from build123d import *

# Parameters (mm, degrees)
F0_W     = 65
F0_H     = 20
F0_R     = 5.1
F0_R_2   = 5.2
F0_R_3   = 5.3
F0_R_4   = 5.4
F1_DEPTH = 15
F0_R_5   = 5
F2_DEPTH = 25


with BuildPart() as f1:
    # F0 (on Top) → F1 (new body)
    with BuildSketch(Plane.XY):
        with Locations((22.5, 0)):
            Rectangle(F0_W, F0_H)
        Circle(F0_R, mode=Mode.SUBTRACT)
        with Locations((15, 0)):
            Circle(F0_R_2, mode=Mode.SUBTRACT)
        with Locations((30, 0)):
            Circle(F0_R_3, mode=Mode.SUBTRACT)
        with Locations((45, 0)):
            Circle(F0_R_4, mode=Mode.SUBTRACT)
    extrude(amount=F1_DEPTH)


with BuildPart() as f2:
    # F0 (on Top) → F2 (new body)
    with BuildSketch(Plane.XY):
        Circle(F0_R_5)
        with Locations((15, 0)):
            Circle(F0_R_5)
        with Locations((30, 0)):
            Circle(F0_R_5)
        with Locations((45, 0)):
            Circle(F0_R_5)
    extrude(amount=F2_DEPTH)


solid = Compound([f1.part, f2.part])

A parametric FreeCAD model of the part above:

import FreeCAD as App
import Part
import Sketcher

V = App.Vector
Q = App.Units.Quantity


def add_polygon(sketch, points):
    """Adds a closed chain of lines whose ends are joined by coincident constraints."""
    first, n = sketch.GeometryCount, len(points)
    for a, b in zip(points, points[1:] + points[:1]):
        sketch.addGeometry(Part.LineSegment(App.Vector(*a, 0), App.Vector(*b, 0)), False)
    for i in range(n):
        sketch.addConstraint(Sketcher.Constraint("Coincident", first + i, 2, first + (i + 1) % n, 1))

doc = App.newDocument("Part")
body = doc.addObject("PartDesign::Body", "Body")

# Sketch on XY plane
sketch1 = body.newObject("Sketcher::SketchObject", "Sketch")
sketch1.AttachmentSupport = (doc.getObject("XY_Plane"), [""])
sketch1.MapMode = "FlatFace"
add_polygon(sketch1, [(-10, 10), (-10, -10), (55, -10), (55, 10)])  # lines 0-3
sketch1.addGeometry(Part.Circle(V(0, 0, 0), V(0, 0, 1), 5), False)  # 4
sketch1.addGeometry(Part.Circle(V(15, 0, 0), V(0, 0, 1), 5), False)  # 5
sketch1.addGeometry(Part.Circle(V(30, 0, 0), V(0, 0, 1), 5), False)  # 6
sketch1.addGeometry(Part.Circle(V(45, 0, 0), V(0, 0, 1), 5), False)  # 7
sketch1.addConstraint(Sketcher.Constraint("Vertical", 0))
sketch1.addConstraint(Sketcher.Constraint("Horizontal", 1))
sketch1.addConstraint(Sketcher.Constraint("Vertical", 2))
sketch1.addConstraint(Sketcher.Constraint("Horizontal", 3))
sketch1.addConstraint(Sketcher.Constraint("Coincident", 4, 3, -1, 1))
sketch1.addConstraint(Sketcher.Constraint("PointOnObject", 5, 3, -1))
sketch1.addConstraint(Sketcher.Constraint("PointOnObject", 6, 3, -1))
sketch1.addConstraint(Sketcher.Constraint("PointOnObject", 7, 3, -1))
sketch1.addConstraint(Sketcher.Constraint("Diameter", 4, Q("10.2 mm")))
sketch1.addConstraint(Sketcher.Constraint("Diameter", 5, Q("10.4 mm")))
sketch1.addConstraint(Sketcher.Constraint("Diameter", 6, Q("10.6 mm")))
sketch1.addConstraint(Sketcher.Constraint("Diameter", 7, Q("10.8 mm")))
sketch1.addConstraint(Sketcher.Constraint("DistanceX", 1, 1, 1, 2, Q("65 mm")))
sketch1.addConstraint(Sketcher.Constraint("DistanceY", 0, 2, 0, 1, Q("20 mm")))
sketch1.addConstraint(Sketcher.Constraint("DistanceX", -1, 1, 5, 3, Q("15 mm")))
sketch1.addConstraint(Sketcher.Constraint("DistanceX", -1, 1, 6, 3, Q("30 mm")))
sketch1.addConstraint(Sketcher.Constraint("DistanceX", -1, 1, 7, 3, Q("45 mm")))
sketch1.addConstraint(Sketcher.Constraint("DistanceX", 0, 2, -1, 1, Q("10 mm")))
sketch1.addConstraint(Sketcher.Constraint("DistanceY", 0, 2, -1, 1, Q("10 mm")))
pad1 = body.newObject("PartDesign::Pad", "Pad")
pad1.Profile = sketch1
pad1.Length = 15
body2 = doc.addObject("PartDesign::Body", "Body001")
body2.AllowCompound = True

# Sketch on XY plane
sketch2 = body2.newObject("Sketcher::SketchObject", "Sketch001")
sketch2.AttachmentSupport = (doc.getObject("XY_Plane001"), [""])
sketch2.MapMode = "FlatFace"
sketch2.addGeometry(Part.Circle(V(0, 0, 0), V(0, 0, 1), 5), False)
sketch2.addGeometry(Part.Circle(V(15, 0, 0), V(0, 0, 1), 5), False)
sketch2.addGeometry(Part.Circle(V(30, 0, 0), V(0, 0, 1), 5), False)
sketch2.addGeometry(Part.Circle(V(45, 0, 0), V(0, 0, 1), 5), False)
sketch2.addConstraint(Sketcher.Constraint("Coincident", 0, 3, -1, 1))
sketch2.addConstraint(Sketcher.Constraint("Equal", 0, 1))
sketch2.addConstraint(Sketcher.Constraint("Equal", 1, 2))
sketch2.addConstraint(Sketcher.Constraint("Equal", 2, 3))
sketch2.addConstraint(Sketcher.Constraint("PointOnObject", 1, 3, -1))
sketch2.addConstraint(Sketcher.Constraint("PointOnObject", 2, 3, -1))
sketch2.addConstraint(Sketcher.Constraint("PointOnObject", 3, 3, -1))
sketch2.addConstraint(Sketcher.Constraint("Diameter", 0, Q("10 mm")))
sketch2.addConstraint(Sketcher.Constraint("DistanceX", -1, 1, 1, 3, Q("15 mm")))
sketch2.addConstraint(Sketcher.Constraint("DistanceX", -1, 1, 2, 3, Q("30 mm")))
sketch2.addConstraint(Sketcher.Constraint("DistanceX", -1, 1, 3, 3, Q("45 mm")))
pad2 = body2.newObject("PartDesign::Pad", "Pad001")
pad2.Profile = sketch2
pad2.Length = 25

doc.recompute()
